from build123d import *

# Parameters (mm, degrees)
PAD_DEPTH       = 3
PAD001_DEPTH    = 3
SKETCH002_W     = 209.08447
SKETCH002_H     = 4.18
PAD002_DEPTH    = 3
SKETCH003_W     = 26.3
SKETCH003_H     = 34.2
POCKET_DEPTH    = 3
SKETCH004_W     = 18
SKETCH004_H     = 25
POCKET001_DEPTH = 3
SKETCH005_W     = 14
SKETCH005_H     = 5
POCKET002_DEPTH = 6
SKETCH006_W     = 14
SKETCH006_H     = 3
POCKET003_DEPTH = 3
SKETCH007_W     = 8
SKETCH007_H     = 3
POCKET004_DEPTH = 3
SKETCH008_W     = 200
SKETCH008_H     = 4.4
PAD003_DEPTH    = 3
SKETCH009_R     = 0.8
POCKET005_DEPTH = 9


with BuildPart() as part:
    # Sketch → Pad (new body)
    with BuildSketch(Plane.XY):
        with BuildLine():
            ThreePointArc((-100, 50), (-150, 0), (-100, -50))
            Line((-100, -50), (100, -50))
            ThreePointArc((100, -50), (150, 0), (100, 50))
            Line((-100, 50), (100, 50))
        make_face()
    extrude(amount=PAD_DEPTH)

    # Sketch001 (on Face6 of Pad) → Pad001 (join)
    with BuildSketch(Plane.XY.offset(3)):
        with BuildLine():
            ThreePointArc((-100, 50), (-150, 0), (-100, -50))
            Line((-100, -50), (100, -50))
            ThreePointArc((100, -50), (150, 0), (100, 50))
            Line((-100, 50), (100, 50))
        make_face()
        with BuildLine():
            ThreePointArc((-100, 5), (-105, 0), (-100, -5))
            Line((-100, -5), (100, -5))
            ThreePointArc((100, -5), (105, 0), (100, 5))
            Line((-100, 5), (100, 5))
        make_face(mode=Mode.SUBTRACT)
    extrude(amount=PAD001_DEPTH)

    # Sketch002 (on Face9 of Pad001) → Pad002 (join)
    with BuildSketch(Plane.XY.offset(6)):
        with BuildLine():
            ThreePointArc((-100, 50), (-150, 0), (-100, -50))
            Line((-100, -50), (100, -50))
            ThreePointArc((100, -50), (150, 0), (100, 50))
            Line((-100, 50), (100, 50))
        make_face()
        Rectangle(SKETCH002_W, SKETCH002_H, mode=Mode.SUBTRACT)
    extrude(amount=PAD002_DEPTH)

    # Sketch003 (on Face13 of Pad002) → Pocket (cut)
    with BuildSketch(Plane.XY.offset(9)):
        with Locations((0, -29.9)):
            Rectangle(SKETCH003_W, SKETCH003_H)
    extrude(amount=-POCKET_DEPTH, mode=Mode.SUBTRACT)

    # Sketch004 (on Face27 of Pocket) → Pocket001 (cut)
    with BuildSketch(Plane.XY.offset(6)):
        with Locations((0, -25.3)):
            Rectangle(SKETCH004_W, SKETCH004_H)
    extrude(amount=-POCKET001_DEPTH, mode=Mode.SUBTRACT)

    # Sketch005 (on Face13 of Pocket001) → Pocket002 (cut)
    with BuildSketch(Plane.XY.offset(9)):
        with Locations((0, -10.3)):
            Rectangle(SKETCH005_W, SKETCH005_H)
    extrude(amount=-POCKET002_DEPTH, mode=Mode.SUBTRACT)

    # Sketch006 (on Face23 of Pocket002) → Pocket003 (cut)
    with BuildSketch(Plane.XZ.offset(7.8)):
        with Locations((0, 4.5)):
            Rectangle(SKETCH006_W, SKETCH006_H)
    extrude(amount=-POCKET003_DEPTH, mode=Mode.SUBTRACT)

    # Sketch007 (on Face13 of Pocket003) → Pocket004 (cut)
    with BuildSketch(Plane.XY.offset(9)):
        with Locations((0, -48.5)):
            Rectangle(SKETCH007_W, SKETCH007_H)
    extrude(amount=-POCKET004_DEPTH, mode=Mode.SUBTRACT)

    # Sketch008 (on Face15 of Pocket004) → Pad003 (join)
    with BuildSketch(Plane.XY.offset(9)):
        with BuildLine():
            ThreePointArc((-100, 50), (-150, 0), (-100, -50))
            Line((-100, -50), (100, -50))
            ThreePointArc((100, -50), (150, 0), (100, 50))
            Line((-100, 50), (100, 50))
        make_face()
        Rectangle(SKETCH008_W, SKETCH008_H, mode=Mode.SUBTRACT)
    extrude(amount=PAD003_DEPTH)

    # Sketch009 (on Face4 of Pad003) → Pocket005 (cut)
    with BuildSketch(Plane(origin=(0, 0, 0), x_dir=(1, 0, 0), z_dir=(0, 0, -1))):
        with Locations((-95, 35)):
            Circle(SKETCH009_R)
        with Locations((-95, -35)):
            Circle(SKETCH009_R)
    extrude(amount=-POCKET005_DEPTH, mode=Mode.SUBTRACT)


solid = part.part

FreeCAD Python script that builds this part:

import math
import FreeCAD as App
import Part
import Sketcher

doc = App.newDocument("Part")
body = doc.addObject("PartDesign::Body", "Body")

# Sketch on XY plane
sketch1 = body.newObject("Sketcher::SketchObject", "Sketch")
sketch1.AttachmentSupport = (doc.getObject("XY_Plane"), [""])
sketch1.MapMode = "FlatFace"
sketch1.addGeometry(Part.ArcOfCircle(Part.Circle(App.Vector(-100, 0, 0), App.Vector(0, 0, 1), 50), math.radians(90), math.radians(270)), False)
sketch1.addGeometry(Part.LineSegment(App.Vector(-100, -50, 0), App.Vector(100, -50, 0)), False)
sketch1.addGeometry(Part.ArcOfCircle(Part.Circle(App.Vector(100, 0, 0), App.Vector(0, 0, 1), 50), math.radians(-90), math.radians(90)), False)
sketch1.addGeometry(Part.LineSegment(App.Vector(100, 50, 0), App.Vector(-100, 50, 0)), False)
sketch1.addConstraint(Sketcher.Constraint("Tangent", 0, 2, 1, 1))
sketch1.addConstraint(Sketcher.Constraint("Tangent", 1, 2, 2, 1))
sketch1.addConstraint(Sketcher.Constraint("Tangent", 2, 2, 3, 1))
sketch1.addConstraint(Sketcher.Constraint("Tangent", 3, 2, 0, 1))
sketch1.addConstraint(Sketcher.Constraint("Horizontal", 1))
sketch1.addConstraint(Sketcher.Constraint("Horizontal", 3))
sketch1.addConstraint(Sketcher.Constraint("Symmetric", 0, 3, 2, 3, -1, 1))
sketch1.addConstraint(Sketcher.Constraint("Radius", 0, 50.0))
sketch1.addConstraint(Sketcher.Constraint("DistanceX", 1, 1, 1, 2, 200.0))
pad1 = body.newObject("PartDesign::Pad", "Pad")
pad1.Profile = sketch1
pad1.Length = 3

# Sketch on XY plane
sketch2 = body.newObject("Sketcher::SketchObject", "Sketch001")
sketch2.AttachmentSupport = (doc.getObject("XY_Plane"), [""])
sketch2.MapMode = "FlatFace"
sketch2.AttachmentOffset = App.Placement(App.Vector(0, 0, 3), App.Rotation())
sketch2.addGeometry(Part.ArcOfCircle(Part.Circle(App.Vector(-100, 0, 0), App.Vector(0, 0, 1), 50), math.radians(90), math.radians(270)), False)
sketch2.addGeometry(Part.LineSegment(App.Vector(-100, -50, 0), App.Vector(100, -50, 0)), False)
sketch2.addGeometry(Part.ArcOfCircle(Part.Circle(App.Vector(100, 0, 0), App.Vector(0, 0, 1), 50), math.radians(-90), math.radians(90)), False)
sketch2.addGeometry(Part.LineSegment(App.Vector(100, 50, 0), App.Vector(-100, 50, 0)), False)
sketch2.addGeometry(Part.ArcOfCircle(Part.Circle(App.Vector(-100, 0, 0), App.Vector(0, 0, 1), 5), math.radians(90), math.radians(270)), False)
sketch2.addGeometry(Part.LineSegment(App.Vector(-100, 5, 0), App.Vector(100, 5, 0)), False)
sketch2.addGeometry(Part.ArcOfCircle(Part.Circle(App.Vector(100, 0, 0), App.Vector(0, 0, 1), 5), math.radians(-90), math.radians(90)), False)
sketch2.addGeometry(Part.LineSegment(App.Vector(100, -5, 0), App.Vector(-100, -5, 0)), False)
sketch2.addConstraint(Sketcher.Constraint("Tangent", 0, 2, 1, 1))
sketch2.addConstraint(Sketcher.Constraint("Tangent", 1, 2, 2, 1))
sketch2.addConstraint(Sketcher.Constraint("Tangent", 2, 2, 3, 1))
sketch2.addConstraint(Sketcher.Constraint("Tangent", 3, 2, 0, 1))
sketch2.addConstraint(Sketcher.Constraint("Tangent", 4, 1, 5, 1))
sketch2.addConstraint(Sketcher.Constraint("Tangent", 5, 2, 6, 2))
sketch2.addConstraint(Sketcher.Constraint("Tangent", 6, 1, 7, 1))
sketch2.addConstraint(Sketcher.Constraint("Tangent", 7, 2, 4, 2))
sketch2.addConstraint(Sketcher.Constraint("Horizontal", 1))
sketch2.addConstraint(Sketcher.Constraint("Horizontal", 3))
sketch2.addConstraint(Sketcher.Constraint("Horizontal", 5))
sketch2.addConstraint(Sketcher.Constraint("Horizontal", 7))
sketch2.addConstraint(Sketcher.Constraint("Coincident", 4, 3, 0, 3))
sketch2.addConstraint(Sketcher.Constraint("Symmetric", 0, 3, 2, 3, -1, 1))
sketch2.addConstraint(Sketcher.Constraint("Vertical", 6, 3, 1, 2))
sketch2.addConstraint(Sketcher.Constraint("Radius", 0, 50.0))
sketch2.addConstraint(Sketcher.Constraint("Radius", 4, 5.0))
sketch2.addConstraint(Sketcher.Constraint("DistanceX", 1, 1, 1, 2, 200.0))
pad2 = body.newObject("PartDesign::Pad", "Pad001")
pad2.Profile = sketch2
pad2.Length = 3

# Sketch on XY plane
sketch3 = body.newObject("Sketcher::SketchObject", "Sketch002")
sketch3.AttachmentSupport = (doc.getObject("XY_Plane"), [""])
sketch3.MapMode = "FlatFace"
sketch3.AttachmentOffset = App.Placement(App.Vector(0, 0, 6), App.Rotation())
sketch3.addGeometry(Part.ArcOfCircle(Part.Circle(App.Vector(-100, 0, 0), App.Vector(0, 0, 1), 50), math.radians(90), math.radians(270)), False)
sketch3.addGeometry(Part.LineSegment(App.Vector(-100, -50, 0), App.Vector(100, -50, 0)), False)
sketch3.addGeometry(Part.ArcOfCircle(Part.Circle(App.Vector(100, 0, 0), App.Vector(0, 0, 1), 50), math.radians(-90), math.radians(90)), False)
sketch3.addGeometry(Part.LineSegment(App.Vector(100, 50, 0), App.Vector(-100, 50, 0)), False)
sketch3.addGeometry(Part.LineSegment(App.Vector(104.542235, -2.09, 0), App.Vector(-104.542235, -2.09, 0)), False)
sketch3.addGeometry(Part.LineSegment(App.Vector(-104.542235, -2.09, 0), App.Vector(-104.542235, 2.09, 0)), False)
sketch3.addGeometry(Part.LineSegment(App.Vector(-104.542235, 2.09, 0), App.Vector(104.542235, 2.09, 0)), False)
sketch3.addGeometry(Part.LineSegment(App.Vector(104.542235, 2.09, 0), App.Vector(104.542235, -2.09, 0)), False)
sketch3.addConstraint(Sketcher.Constraint("Tangent", 0, 2, 1, 1))
sketch3.addConstraint(Sketcher.Constraint("Tangent", 1, 2, 2, 1))
sketch3.addConstraint(Sketcher.Constraint("Tangent", 2, 2, 3, 1))
sketch3.addConstraint(Sketcher.Constraint("Tangent", 3, 2, 0, 1))
sketch3.addConstraint(Sketcher.Constraint("Coincident", 4, 2, 5, 1))
sketch3.addConstraint(Sketcher.Constraint("Coincident", 5, 2, 6, 1))
sketch3.addConstraint(Sketcher.Constraint("Coincident", 6, 2, 7, 1))
sketch3.addConstraint(Sketcher.Constraint("Coincident", 7, 2, 4, 1))
sketch3.addConstraint(Sketcher.Constraint("Horizontal", 1))
sketch3.addConstraint(Sketcher.Constraint("Horizontal", 3))
sketch3.addConstraint(Sketcher.Constraint("Horizontal", 4))
sketch3.addConstraint(Sketcher.Constraint("Vertical", 5))
sketch3.addConstraint(Sketcher.Constraint("Horizontal", 6))
sketch3.addConstraint(Sketcher.Constraint("Vertical", 7))
sketch3.addConstraint(Sketcher.Constraint("Symmetric", 0, 3, 2, 3, -1, 1))
sketch3.addConstraint(Sketcher.Constraint("Symmetric", 4, 2, 6, 2, -1, 1))
sketch3.addConstraint(Sketcher.Constraint("Radius", 0, 50.0))
sketch3.addConstraint(Sketcher.Constraint("DistanceX", 1, 1, 1, 2, 200.0))
sketch3.addConstraint(Sketcher.Constraint("DistanceY", 5, 1, 5, 2, 4.18))
sketch3.addConstraint(Sketcher.Constraint("DistanceX", 4, 2, 4, 1, 209.08447))
pad3 = body.newObject("PartDesign::Pad", "Pad002")
pad3.Profile = sketch3
pad3.Length = 3

# Sketch on XY plane
sketch4 = body.newObject("Sketcher::SketchObject", "Sketch003")
sketch4.AttachmentSupport = (doc.getObject("XY_Plane"), [""])
sketch4.MapMode = "FlatFace"
sketch4.AttachmentOffset = App.Placement(App.Vector(0, 0, 9), App.Rotation())
sketch4.addGeometry(Part.LineSegment(App.Vector(-13.15, -12.8, 0), App.Vector(-13.15, -47, 0)), False)
sketch4.addGeometry(Part.LineSegment(App.Vector(-13.15, -47, 0), App.Vector(13.15, -47, 0)), False)
sketch4.addGeometry(Part.LineSegment(App.Vector(13.15, -47, 0), App.Vector(13.15, -12.8, 0)), False)
sketch4.addGeometry(Part.LineSegment(App.Vector(13.15, -12.8, 0), App.Vector(-13.15, -12.8, 0)), False)
sketch4.addConstraint(Sketcher.Constraint("Coincident", 0, 2, 1, 1))
sketch4.addConstraint(Sketcher.Constraint("Coincident", 1, 2, 2, 1))
sketch4.addConstraint(Sketcher.Constraint("Coincident", 2, 2, 3, 1))
sketch4.addConstraint(Sketcher.Constraint("Coincident", 3, 2, 0, 1))
sketch4.addConstraint(Sketcher.Constraint("Vertical", 0))
sketch4.addConstraint(Sketcher.Constraint("Horizontal", 1))
sketch4.addConstraint(Sketcher.Constraint("Vertical", 2))
sketch4.addConstraint(Sketcher.Constraint("Horizontal", 3))
sketch4.addConstraint(Sketcher.Constraint("DistanceX", 1, 1, 1, 2, 26.3))
sketch4.addConstraint(Sketcher.Constraint("DistanceY", 0, 2, 0, 1, 34.2))
sketch4.addConstraint(Sketcher.Constraint("DistanceY", 0, 2, -1, 1, 47.0))
sketch4.addConstraint(Sketcher.Constraint("DistanceX", 0, 2, -1, 1, 13.15))
pocket1 = body.newObject("PartDesign::Pocket", "Pocket")
pocket1.Profile = sketch4
pocket1.Length = 3

# Sketch on XY plane
sketch5 = body.newObject("Sketcher::SketchObject", "Sketch004")
sketch5.AttachmentSupport = (doc.getObject("XY_Plane"), [""])
sketch5.MapMode = "FlatFace"
sketch5.AttachmentOffset = App.Placement(App.Vector(0, 0, 6), App.Rotation())
sketch5.addGeometry(Part.LineSegment(App.Vector(-9, -12.8, 0), App.Vector(-9, -37.8, 0)), False)
sketch5.addGeometry(Part.LineSegment(App.Vector(-9, -37.8, 0), App.Vector(9, -37.8, 0)), False)
sketch5.addGeometry(Part.LineSegment(App.Vector(9, -37.8, 0), App.Vector(9, -12.8, 0)), False)
sketch5.addGeometry(Part.LineSegment(App.Vector(9, -12.8, 0), App.Vector(-9, -12.8, 0)), False)
sketch5.addConstraint(Sketcher.Constraint("Coincident", 0, 2, 1, 1))
sketch5.addConstraint(Sketcher.Constraint("Coincident", 1, 2, 2, 1))
sketch5.addConstraint(Sketcher.Constraint("Coincident", 2, 2, 3, 1))
sketch5.addConstraint(Sketcher.Constraint("Coincident", 3, 2, 0, 1))
sketch5.addConstraint(Sketcher.Constraint("Vertical", 0))
sketch5.addConstraint(Sketcher.Constraint("Horizontal", 1))
sketch5.addConstraint(Sketcher.Constraint("Vertical", 2))
sketch5.addConstraint(Sketcher.Constraint("Horizontal", 3))
sketch5.addConstraint(Sketcher.Constraint("DistanceX", 1, 1, 1, 2, 18.0))
sketch5.addConstraint(Sketcher.Constraint("DistanceY", 0, 2, 0, 1, 25.0))
sketch5.addConstraint(Sketcher.Constraint("DistanceX", 0, 2, -1, 1, 9.0))
sketch5.addConstraint(Sketcher.Constraint("DistanceY", 0, 2, -1, 1, 37.8))
pocket2 = body.newObject("PartDesign::Pocket", "Pocket001")
pocket2.Profile = sketch5
pocket2.Length = 3

# Sketch on XY plane
sketch6 = body.newObject("Sketcher::SketchObject", "Sketch005")
sketch6.AttachmentSupport = (doc.getObject("XY_Plane"), [""])
sketch6.MapMode = "FlatFace"
sketch6.AttachmentOffset = App.Placement(App.Vector(0, 0, 9), App.Rotation())
sketch6.addGeometry(Part.LineSegment(App.Vector(-7, -7.8, 0), App.Vector(-7, -12.8, 0)), False)
sketch6.addGeometry(Part.LineSegment(App.Vector(-7, -12.8, 0), App.Vector(7, -12.8, 0)), False)
sketch6.addGeometry(Part.LineSegment(App.Vector(7, -12.8, 0), App.Vector(7, -7.8, 0)), False)
sketch6.addGeometry(Part.LineSegment(App.Vector(7, -7.8, 0), App.Vector(-7, -7.8, 0)), False)
sketch6.addConstraint(Sketcher.Constraint("Coincident", 0, 2, 1, 1))
sketch6.addConstraint(Sketcher.Constraint("Coincident", 1, 2, 2, 1))
sketch6.addConstraint(Sketcher.Constraint("Coincident", 2, 2, 3, 1))
sketch6.addConstraint(Sketcher.Constraint("Coincident", 3, 2, 0, 1))
sketch6.addConstraint(Sketcher.Constraint("Vertical", 0))
sketch6.addConstraint(Sketcher.Constraint("Horizontal", 1))
sketch6.addConstraint(Sketcher.Constraint("Vertical", 2))
sketch6.addConstraint(Sketcher.Constraint("Horizontal", 3))
sketch6.addConstraint(Sketcher.Constraint("DistanceX", 1, 1, 1, 2, 14.0))
sketch6.addConstraint(Sketcher.Constraint("DistanceY", 0, 2, 0, 1, 5.0))
sketch6.addConstraint(Sketcher.Constraint("DistanceX", 0, 2, -1, 1, 7.0))
sketch6.addConstraint(Sketcher.Constraint("DistanceY", 0, 2, -1, 1, 12.8))
pocket3 = body.newObject("PartDesign::Pocket", "Pocket002")
pocket3.Profile = sketch6
pocket3.Length = 6

# Sketch on XZ plane
sketch7 = body.newObject("Sketcher::SketchObject", "Sketch006")
sketch7.AttachmentSupport = (doc.getObject("XZ_Plane"), [""])
sketch7.MapMode = "FlatFace"
sketch7.AttachmentOffset = App.Placement(App.Vector(0, 0, 7.8), App.Rotation())
sketch7.addGeometry(Part.LineSegment(App.Vector(-7, 6, 0), App.Vector(-7, 3, 0)), False)
sketch7.addGeometry(Part.LineSegment(App.Vector(-7, 3, 0), App.Vector(7, 3, 0)), False)
sketch7.addGeometry(Part.LineSegment(App.Vector(7, 3, 0), App.Vector(7, 6, 0)), False)
sketch7.addGeometry(Part.LineSegment(App.Vector(7, 6, 0), App.Vector(-7, 6, 0)), False)
sketch7.addConstraint(Sketcher.Constraint("Coincident", 0, 2, 1, 1))
sketch7.addConstraint(Sketcher.Constraint("Coincident", 1, 2, 2, 1))
sketch7.addConstraint(Sketcher.Constraint("Coincident", 2, 2, 3, 1))
sketch7.addConstraint(Sketcher.Constraint("Coincident", 3, 2, 0, 1))
sketch7.addConstraint(Sketcher.Constraint("Vertical", 0))
sketch7.addConstraint(Sketcher.Constraint("Horizontal", 1))
sketch7.addConstraint(Sketcher.Constraint("Vertical", 2))
sketch7.addConstraint(Sketcher.Constraint("Horizontal", 3))
sketch7.addConstraint(Sketcher.Constraint("DistanceX", 1, 1, 1, 2, 14.0))
sketch7.addConstraint(Sketcher.Constraint("DistanceY", 0, 2, 0, 1, 3.0))
sketch7.addConstraint(Sketcher.Constraint("DistanceX", 0, 2, -1, 1, 7.0))
sketch7.addConstraint(Sketcher.Constraint("DistanceY", -1, 1, 0, 2, 3.0))
pocket4 = body.newObject("PartDesign::Pocket", "Pocket003")
pocket4.Profile = sketch7
pocket4.Length = 3

# Sketch on XY plane
sketch8 = body.newObject("Sketcher::SketchObject", "Sketch007")
sketch8.AttachmentSupport = (doc.getObject("XY_Plane"), [""])
sketch8.MapMode = "FlatFace"
sketch8.AttachmentOffset = App.Placement(App.Vector(0, 0, 9), App.Rotation())
sketch8.addGeometry(Part.LineSegment(App.Vector(-4, -47, 0), App.Vector(-4, -50, 0)), False)
sketch8.addGeometry(Part.LineSegment(App.Vector(-4, -50, 0), App.Vector(4, -50, 0)), False)
sketch8.addGeometry(Part.LineSegment(App.Vector(4, -50, 0), App.Vector(4, -47, 0)), False)
sketch8.addGeometry(Part.LineSegment(App.Vector(4, -47, 0), App.Vector(-4, -47, 0)), False)
sketch8.addConstraint(Sketcher.Constraint("Coincident", 0, 2, 1, 1))
sketch8.addConstraint(Sketcher.Constraint("Coincident", 1, 2, 2, 1))
sketch8.addConstraint(Sketcher.Constraint("Coincident", 2, 2, 3, 1))
sketch8.addConstraint(Sketcher.Constraint("Coincident", 3, 2, 0, 1))
sketch8.addConstraint(Sketcher.Constraint("Vertical", 0))
sketch8.addConstraint(Sketcher.Constraint("Horizontal", 1))
sketch8.addConstraint(Sketcher.Constraint("Vertical", 2))
sketch8.addConstraint(Sketcher.Constraint("Horizontal", 3))
sketch8.addConstraint(Sketcher.Constraint("DistanceX", 1, 1, 1, 2, 8.0))
sketch8.addConstraint(Sketcher.Constraint("DistanceY", 0, 2, 0, 1, 3.0))
sketch8.addConstraint(Sketcher.Constraint("DistanceX", 0, 2, -1, 1, 4.0))
sketch8.addConstraint(Sketcher.Constraint("DistanceY", 0, 2, -1, 1, 50.0))
pocket5 = body.newObject("PartDesign::Pocket", "Pocket004")
pocket5.Profile = sketch8
pocket5.Length = 3

# Sketch on XY plane
sketch9 = body.newObject("Sketcher::SketchObject", "Sketch008")
sketch9.AttachmentSupport = (doc.getObject("XY_Plane"), [""])
sketch9.MapMode = "FlatFace"
sketch9.AttachmentOffset = App.Placement(App.Vector(0, 0, 9), App.Rotation())
sketch9.addGeometry(Part.ArcOfCircle(Part.Circle(App.Vector(-100, 0, 0), App.Vector(0, 0, 1), 50), math.radians(90), math.radians(270)), False)
sketch9.addGeometry(Part.LineSegment(App.Vector(-100, -50, 0), App.Vector(100, -50, 0)), False)
sketch9.addGeometry(Part.ArcOfCircle(Part.Circle(App.Vector(100, 0, 0), App.Vector(0, 0, 1), 50), math.radians(-90), math.radians(90)), False)
sketch9.addGeometry(Part.LineSegment(App.Vector(100, 50, 0), App.Vector(-100, 50, 0)), False)
sketch9.addGeometry(Part.LineSegment(App.Vector(100, -2.2, 0), App.Vector(-100, -2.2, 0)), False)
sketch9.addGeometry(Part.LineSegment(App.Vector(-100, -2.2, 0), App.Vector(-100, 2.2, 0)), False)
sketch9.addGeometry(Part.LineSegment(App.Vector(-100, 2.2, 0), App.Vector(100, 2.2, 0)), False)
sketch9.addGeometry(Part.LineSegment(App.Vector(100, 2.2, 0), App.Vector(100, -2.2, 0)), False)
sketch9.addConstraint(Sketcher.Constraint("Tangent", 0, 2, 1, 1))
sketch9.addConstraint(Sketcher.Constraint("Tangent", 1, 2, 2, 1))
sketch9.addConstraint(Sketcher.Constraint("Tangent", 2, 2, 3, 1))
sketch9.addConstraint(Sketcher.Constraint("Tangent", 3, 2, 0, 1))
sketch9.addConstraint(Sketcher.Constraint("Coincident", 4, 2, 5, 1))
sketch9.addConstraint(Sketcher.Constraint("Coincident", 5, 2, 6, 1))
sketch9.addConstraint(Sketcher.Constraint("Coincident", 6, 2, 7, 1))
sketch9.addConstraint(Sketcher.Constraint("Coincident", 7, 2, 4, 1))
sketch9.addConstraint(Sketcher.Constraint("Horizontal", 1))
sketch9.addConstraint(Sketcher.Constraint("Horizontal", 3))
sketch9.addConstraint(Sketcher.Constraint("Horizontal", 4))
sketch9.addConstraint(Sketcher.Constraint("Vertical", 5))
sketch9.addConstraint(Sketcher.Constraint("Horizontal", 6))
sketch9.addConstraint(Sketcher.Constraint("Vertical", 7))
sketch9.addConstraint(Sketcher.Constraint("Symmetric", 0, 3, 2, 3, -1, 1))
sketch9.addConstraint(Sketcher.Constraint("Symmetric", 4, 2, 6, 2, -1, 1))
sketch9.addConstraint(Sketcher.Constraint("Vertical", 3, 2, 4, 2))
sketch9.addConstraint(Sketcher.Constraint("Radius", 0, 50.0))
sketch9.addConstraint(Sketcher.Constraint("DistanceX", 1, 1, 1, 2, 200.0))
sketch9.addConstraint(Sketcher.Constraint("DistanceY", 5, 1, 5, 2, 4.4))
pad4 = body.newObject("PartDesign::Pad", "Pad003")
pad4.Profile = sketch9
pad4.Length = 3

# Sketch on XY plane
sketch10 = body.newObject("Sketcher::SketchObject", "Sketch009")
sketch10.AttachmentSupport = (doc.getObject("XY_Plane"), [""])
sketch10.MapMode = "FlatFace"
sketch10.addGeometry(Part.Circle(App.Vector(-95, -35, 0), App.Vector(0, 0, 1), 0.8), False)
sketch10.addGeometry(Part.Circle(App.Vector(-95, 35, 0), App.Vector(0, 0, 1), 0.8), False)
sketch10.addConstraint(Sketcher.Constraint("Equal", 0, 1))
sketch10.addConstraint(Sketcher.Constraint("Symmetric", 0, 3, 1, 3, -1))
sketch10.addConstraint(Sketcher.Constraint("Diameter", 0, 1.6))
sketch10.addConstraint(Sketcher.Constraint("DistanceX", 0, 3, -1, 1, 95.0))
sketch10.addConstraint(Sketcher.Constraint("DistanceY", 0, 3, -1, 1, 35.0))
pocket6 = body.newObject("PartDesign::Pocket", "Pocket005")
pocket6.Profile = sketch10
pocket6.Length = 9
pocket6.Reversed = True

doc.recompute()
